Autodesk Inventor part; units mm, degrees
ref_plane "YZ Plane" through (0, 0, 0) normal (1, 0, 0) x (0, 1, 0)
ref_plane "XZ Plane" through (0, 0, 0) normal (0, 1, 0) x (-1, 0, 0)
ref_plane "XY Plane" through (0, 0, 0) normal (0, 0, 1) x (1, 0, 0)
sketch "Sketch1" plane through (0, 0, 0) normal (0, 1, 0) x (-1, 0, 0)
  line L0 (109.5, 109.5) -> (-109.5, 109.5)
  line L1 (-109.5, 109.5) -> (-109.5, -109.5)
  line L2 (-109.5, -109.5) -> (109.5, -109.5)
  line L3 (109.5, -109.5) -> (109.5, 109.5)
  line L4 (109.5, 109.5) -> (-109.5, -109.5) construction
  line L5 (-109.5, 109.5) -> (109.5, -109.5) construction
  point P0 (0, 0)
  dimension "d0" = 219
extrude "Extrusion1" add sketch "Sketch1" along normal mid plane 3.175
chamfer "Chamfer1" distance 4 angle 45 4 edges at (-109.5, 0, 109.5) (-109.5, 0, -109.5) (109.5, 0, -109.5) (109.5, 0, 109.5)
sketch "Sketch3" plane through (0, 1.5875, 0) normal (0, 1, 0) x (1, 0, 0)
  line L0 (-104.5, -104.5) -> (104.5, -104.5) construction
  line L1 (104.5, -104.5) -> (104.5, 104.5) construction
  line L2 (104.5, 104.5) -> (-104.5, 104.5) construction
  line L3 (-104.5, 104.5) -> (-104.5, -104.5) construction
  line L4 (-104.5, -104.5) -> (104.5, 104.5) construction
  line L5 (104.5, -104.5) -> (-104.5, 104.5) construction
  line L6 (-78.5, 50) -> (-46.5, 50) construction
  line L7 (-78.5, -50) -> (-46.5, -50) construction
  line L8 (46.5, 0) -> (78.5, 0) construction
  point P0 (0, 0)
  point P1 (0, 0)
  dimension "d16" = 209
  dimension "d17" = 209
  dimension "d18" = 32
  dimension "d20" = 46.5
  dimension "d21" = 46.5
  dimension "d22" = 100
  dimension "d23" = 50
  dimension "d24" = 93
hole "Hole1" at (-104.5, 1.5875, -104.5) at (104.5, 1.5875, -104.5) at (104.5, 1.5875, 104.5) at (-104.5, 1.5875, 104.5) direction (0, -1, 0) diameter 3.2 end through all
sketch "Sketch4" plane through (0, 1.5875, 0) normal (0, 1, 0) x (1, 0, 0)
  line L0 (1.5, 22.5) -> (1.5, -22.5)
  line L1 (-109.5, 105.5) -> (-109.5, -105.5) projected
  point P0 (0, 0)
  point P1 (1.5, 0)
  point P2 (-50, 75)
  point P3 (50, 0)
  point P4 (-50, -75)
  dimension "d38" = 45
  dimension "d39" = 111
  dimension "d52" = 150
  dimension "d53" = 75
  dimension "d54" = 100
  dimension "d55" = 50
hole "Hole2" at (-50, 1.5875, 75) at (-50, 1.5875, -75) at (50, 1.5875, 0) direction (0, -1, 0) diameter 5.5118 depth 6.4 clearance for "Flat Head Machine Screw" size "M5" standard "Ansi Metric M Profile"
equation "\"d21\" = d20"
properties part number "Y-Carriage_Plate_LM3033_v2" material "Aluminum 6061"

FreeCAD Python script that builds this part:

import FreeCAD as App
import Part
import Sketcher

V = App.Vector


def edges_at(feature, points):
    """Names of the edges that pass closest to the given points."""
    edges = feature.Shape.Edges
    near = lambda p: min(range(len(edges)), key=lambda i: edges[i].distToShape(Part.Vertex(*p))[0])
    return sorted({f"Edge{near(p) + 1}" for p in points})


def add_polygon(sketch, points):
    """Adds a closed chain of lines whose ends are joined by coincident constraints."""
    first, n = sketch.GeometryCount, len(points)
    for a, b in zip(points, points[1:] + points[:1]):
        sketch.addGeometry(Part.LineSegment(App.Vector(*a, 0), App.Vector(*b, 0)), False)
    for i in range(n):
        sketch.addConstraint(Sketcher.Constraint("Coincident", first + i, 2, first + (i + 1) % n, 1))

doc = App.newDocument("Part")
body = doc.addObject("PartDesign::Body", "Body")

sketch1 = body.newObject("Sketcher::SketchObject", "Sketch")
sketch1.AttachmentSupport = (doc.getObject("XZ_Plane"), [""])
sketch1.MapMode = "FlatFace"
add_polygon(sketch1, [(-110, -110), (-110, 110), (110, 110), (110, -110)])
sketch1.addConstraint(Sketcher.Constraint("Vertical", 0))
sketch1.addConstraint(Sketcher.Constraint("Horizontal", 1))
sketch1.addConstraint(Sketcher.Constraint("Vertical", 2))
sketch1.addConstraint(Sketcher.Constraint("Horizontal", 3))
sketch1.addConstraint(Sketcher.Constraint("Symmetric", 0, 2, 2, 2, -1, 1))
sketch1.addConstraint(Sketcher.Constraint("Equal", 3, 0))
sketch1.addConstraint(Sketcher.Constraint("DistanceX", 1, 1, 1, 2, 219.0))
pad1 = body.newObject("PartDesign::Pad", "Pad")
pad1.Profile = sketch1
pad1.Length = 3.175
pad1.Midplane = True
doc.recompute()

chamfer = body.newObject("PartDesign::Chamfer", "Chamfer")
chamfer.Base = (pad1, edges_at(pad1, [
    (-109.5, 0, 109.5),
    (-109.5, 0, -109.5),
    (109.5, 0, -109.5),
    (109.5, 0, 109.5),
]))
chamfer.Size = 4

sketch2 = body.newObject("Sketcher::SketchObject", "Sketch001")
sketch2.AttachmentSupport = (doc.getObject("XZ_Plane"), [""])
sketch2.MapMode = "FlatFace"
sketch2.AttachmentOffset = App.Placement(V(0, 0, -1.5875), App.Rotation())
sketch2.addGeometry(Part.Circle(V(-104.5, -104.5, 0), V(0, 0, 1), 1.6), False)
sketch2.addGeometry(Part.Circle(V(104.5, -104.5, 0), V(0, 0, 1), 1.6), False)
sketch2.addGeometry(Part.Circle(V(104.5, 104.5, 0), V(0, 0, 1), 1.6), False)
sketch2.addGeometry(Part.Circle(V(-104.5, 104.5, 0), V(0, 0, 1), 1.6), False)
sketch2.addConstraint(Sketcher.Constraint("Equal", 0, 1))
sketch2.addConstraint(Sketcher.Constraint("Equal", 1, 2))
sketch2.addConstraint(Sketcher.Constraint("Equal", 2, 3))
sketch2.addConstraint(Sketcher.Constraint("Symmetric", 0, 3, 2, 3, -1, 1))
sketch2.addConstraint(Sketcher.Constraint("Symmetric", 1, 3, 3, 3, -1, 1))
sketch2.addConstraint(Sketcher.Constraint("Symmetric", 0, 3, 1, 3, -2))
sketch2.addConstraint(Sketcher.Constraint("Diameter", 0, 3.2))
sketch2.addConstraint(Sketcher.Constraint("DistanceX", 0, 3, 1, 3, 209.0))
sketch2.addConstraint(Sketcher.Constraint("DistanceY", 1, 3, 2, 3, 209.0))
doc.recompute()
hole = body.newObject("PartDesign::Hole", "Hole")
hole.Profile = sketch2
hole.ThreadType = "None"
hole.Diameter = 3.2
hole.DepthType = "ThroughAll"
hole.Reversed = True

sketch3 = body.newObject("Sketcher::SketchObject", "Sketch002")
sketch3.AttachmentSupport = (doc.getObject("XZ_Plane"), [""])
sketch3.MapMode = "FlatFace"
sketch3.AttachmentOffset = App.Placement(V(0, 0, -1.5875), App.Rotation())
sketch3.addGeometry(Part.Circle(V(-50, 75, 0), V(0, 0, 1), 2.8), False)
sketch3.addGeometry(Part.Circle(V(-50, -75, 0), V(0, 0, 1), 2.8), False)
sketch3.addGeometry(Part.Circle(V(50, 0, 0), V(0, 0, 1), 2.8), False)
sketch3.addConstraint(Sketcher.Constraint("Equal", 0, 1))
sketch3.addConstraint(Sketcher.Constraint("Equal", 1, 2))
sketch3.addConstraint(Sketcher.Constraint("Symmetric", 0, 3, 1, 3, -1))
sketch3.addConstraint(Sketcher.Constraint("PointOnObject", 2, 3, -1))
sketch3.addConstraint(Sketcher.Constraint("DistanceX", 0, 3, -1, 1, 50.0))
sketch3.addConstraint(Sketcher.Constraint("DistanceY", -1, 1, 0, 3, 75.0))
sketch3.addConstraint(Sketcher.Constraint("DistanceX", -1, 1, 2, 3, 50.0))
sketch3.addConstraint(Sketcher.Constraint("Diameter", 0, 5.5118))
doc.recompute()
hole2 = body.newObject("PartDesign::Hole", "Hole001")
hole2.Profile = sketch3
hole2.ThreadType = "None"
hole2.Diameter = 5.5118
hole2.DepthType = "Dimension"
hole2.Depth = 6.4
hole2.DrillPoint = "Flat"
hole2.Reversed = True

doc.recompute()
